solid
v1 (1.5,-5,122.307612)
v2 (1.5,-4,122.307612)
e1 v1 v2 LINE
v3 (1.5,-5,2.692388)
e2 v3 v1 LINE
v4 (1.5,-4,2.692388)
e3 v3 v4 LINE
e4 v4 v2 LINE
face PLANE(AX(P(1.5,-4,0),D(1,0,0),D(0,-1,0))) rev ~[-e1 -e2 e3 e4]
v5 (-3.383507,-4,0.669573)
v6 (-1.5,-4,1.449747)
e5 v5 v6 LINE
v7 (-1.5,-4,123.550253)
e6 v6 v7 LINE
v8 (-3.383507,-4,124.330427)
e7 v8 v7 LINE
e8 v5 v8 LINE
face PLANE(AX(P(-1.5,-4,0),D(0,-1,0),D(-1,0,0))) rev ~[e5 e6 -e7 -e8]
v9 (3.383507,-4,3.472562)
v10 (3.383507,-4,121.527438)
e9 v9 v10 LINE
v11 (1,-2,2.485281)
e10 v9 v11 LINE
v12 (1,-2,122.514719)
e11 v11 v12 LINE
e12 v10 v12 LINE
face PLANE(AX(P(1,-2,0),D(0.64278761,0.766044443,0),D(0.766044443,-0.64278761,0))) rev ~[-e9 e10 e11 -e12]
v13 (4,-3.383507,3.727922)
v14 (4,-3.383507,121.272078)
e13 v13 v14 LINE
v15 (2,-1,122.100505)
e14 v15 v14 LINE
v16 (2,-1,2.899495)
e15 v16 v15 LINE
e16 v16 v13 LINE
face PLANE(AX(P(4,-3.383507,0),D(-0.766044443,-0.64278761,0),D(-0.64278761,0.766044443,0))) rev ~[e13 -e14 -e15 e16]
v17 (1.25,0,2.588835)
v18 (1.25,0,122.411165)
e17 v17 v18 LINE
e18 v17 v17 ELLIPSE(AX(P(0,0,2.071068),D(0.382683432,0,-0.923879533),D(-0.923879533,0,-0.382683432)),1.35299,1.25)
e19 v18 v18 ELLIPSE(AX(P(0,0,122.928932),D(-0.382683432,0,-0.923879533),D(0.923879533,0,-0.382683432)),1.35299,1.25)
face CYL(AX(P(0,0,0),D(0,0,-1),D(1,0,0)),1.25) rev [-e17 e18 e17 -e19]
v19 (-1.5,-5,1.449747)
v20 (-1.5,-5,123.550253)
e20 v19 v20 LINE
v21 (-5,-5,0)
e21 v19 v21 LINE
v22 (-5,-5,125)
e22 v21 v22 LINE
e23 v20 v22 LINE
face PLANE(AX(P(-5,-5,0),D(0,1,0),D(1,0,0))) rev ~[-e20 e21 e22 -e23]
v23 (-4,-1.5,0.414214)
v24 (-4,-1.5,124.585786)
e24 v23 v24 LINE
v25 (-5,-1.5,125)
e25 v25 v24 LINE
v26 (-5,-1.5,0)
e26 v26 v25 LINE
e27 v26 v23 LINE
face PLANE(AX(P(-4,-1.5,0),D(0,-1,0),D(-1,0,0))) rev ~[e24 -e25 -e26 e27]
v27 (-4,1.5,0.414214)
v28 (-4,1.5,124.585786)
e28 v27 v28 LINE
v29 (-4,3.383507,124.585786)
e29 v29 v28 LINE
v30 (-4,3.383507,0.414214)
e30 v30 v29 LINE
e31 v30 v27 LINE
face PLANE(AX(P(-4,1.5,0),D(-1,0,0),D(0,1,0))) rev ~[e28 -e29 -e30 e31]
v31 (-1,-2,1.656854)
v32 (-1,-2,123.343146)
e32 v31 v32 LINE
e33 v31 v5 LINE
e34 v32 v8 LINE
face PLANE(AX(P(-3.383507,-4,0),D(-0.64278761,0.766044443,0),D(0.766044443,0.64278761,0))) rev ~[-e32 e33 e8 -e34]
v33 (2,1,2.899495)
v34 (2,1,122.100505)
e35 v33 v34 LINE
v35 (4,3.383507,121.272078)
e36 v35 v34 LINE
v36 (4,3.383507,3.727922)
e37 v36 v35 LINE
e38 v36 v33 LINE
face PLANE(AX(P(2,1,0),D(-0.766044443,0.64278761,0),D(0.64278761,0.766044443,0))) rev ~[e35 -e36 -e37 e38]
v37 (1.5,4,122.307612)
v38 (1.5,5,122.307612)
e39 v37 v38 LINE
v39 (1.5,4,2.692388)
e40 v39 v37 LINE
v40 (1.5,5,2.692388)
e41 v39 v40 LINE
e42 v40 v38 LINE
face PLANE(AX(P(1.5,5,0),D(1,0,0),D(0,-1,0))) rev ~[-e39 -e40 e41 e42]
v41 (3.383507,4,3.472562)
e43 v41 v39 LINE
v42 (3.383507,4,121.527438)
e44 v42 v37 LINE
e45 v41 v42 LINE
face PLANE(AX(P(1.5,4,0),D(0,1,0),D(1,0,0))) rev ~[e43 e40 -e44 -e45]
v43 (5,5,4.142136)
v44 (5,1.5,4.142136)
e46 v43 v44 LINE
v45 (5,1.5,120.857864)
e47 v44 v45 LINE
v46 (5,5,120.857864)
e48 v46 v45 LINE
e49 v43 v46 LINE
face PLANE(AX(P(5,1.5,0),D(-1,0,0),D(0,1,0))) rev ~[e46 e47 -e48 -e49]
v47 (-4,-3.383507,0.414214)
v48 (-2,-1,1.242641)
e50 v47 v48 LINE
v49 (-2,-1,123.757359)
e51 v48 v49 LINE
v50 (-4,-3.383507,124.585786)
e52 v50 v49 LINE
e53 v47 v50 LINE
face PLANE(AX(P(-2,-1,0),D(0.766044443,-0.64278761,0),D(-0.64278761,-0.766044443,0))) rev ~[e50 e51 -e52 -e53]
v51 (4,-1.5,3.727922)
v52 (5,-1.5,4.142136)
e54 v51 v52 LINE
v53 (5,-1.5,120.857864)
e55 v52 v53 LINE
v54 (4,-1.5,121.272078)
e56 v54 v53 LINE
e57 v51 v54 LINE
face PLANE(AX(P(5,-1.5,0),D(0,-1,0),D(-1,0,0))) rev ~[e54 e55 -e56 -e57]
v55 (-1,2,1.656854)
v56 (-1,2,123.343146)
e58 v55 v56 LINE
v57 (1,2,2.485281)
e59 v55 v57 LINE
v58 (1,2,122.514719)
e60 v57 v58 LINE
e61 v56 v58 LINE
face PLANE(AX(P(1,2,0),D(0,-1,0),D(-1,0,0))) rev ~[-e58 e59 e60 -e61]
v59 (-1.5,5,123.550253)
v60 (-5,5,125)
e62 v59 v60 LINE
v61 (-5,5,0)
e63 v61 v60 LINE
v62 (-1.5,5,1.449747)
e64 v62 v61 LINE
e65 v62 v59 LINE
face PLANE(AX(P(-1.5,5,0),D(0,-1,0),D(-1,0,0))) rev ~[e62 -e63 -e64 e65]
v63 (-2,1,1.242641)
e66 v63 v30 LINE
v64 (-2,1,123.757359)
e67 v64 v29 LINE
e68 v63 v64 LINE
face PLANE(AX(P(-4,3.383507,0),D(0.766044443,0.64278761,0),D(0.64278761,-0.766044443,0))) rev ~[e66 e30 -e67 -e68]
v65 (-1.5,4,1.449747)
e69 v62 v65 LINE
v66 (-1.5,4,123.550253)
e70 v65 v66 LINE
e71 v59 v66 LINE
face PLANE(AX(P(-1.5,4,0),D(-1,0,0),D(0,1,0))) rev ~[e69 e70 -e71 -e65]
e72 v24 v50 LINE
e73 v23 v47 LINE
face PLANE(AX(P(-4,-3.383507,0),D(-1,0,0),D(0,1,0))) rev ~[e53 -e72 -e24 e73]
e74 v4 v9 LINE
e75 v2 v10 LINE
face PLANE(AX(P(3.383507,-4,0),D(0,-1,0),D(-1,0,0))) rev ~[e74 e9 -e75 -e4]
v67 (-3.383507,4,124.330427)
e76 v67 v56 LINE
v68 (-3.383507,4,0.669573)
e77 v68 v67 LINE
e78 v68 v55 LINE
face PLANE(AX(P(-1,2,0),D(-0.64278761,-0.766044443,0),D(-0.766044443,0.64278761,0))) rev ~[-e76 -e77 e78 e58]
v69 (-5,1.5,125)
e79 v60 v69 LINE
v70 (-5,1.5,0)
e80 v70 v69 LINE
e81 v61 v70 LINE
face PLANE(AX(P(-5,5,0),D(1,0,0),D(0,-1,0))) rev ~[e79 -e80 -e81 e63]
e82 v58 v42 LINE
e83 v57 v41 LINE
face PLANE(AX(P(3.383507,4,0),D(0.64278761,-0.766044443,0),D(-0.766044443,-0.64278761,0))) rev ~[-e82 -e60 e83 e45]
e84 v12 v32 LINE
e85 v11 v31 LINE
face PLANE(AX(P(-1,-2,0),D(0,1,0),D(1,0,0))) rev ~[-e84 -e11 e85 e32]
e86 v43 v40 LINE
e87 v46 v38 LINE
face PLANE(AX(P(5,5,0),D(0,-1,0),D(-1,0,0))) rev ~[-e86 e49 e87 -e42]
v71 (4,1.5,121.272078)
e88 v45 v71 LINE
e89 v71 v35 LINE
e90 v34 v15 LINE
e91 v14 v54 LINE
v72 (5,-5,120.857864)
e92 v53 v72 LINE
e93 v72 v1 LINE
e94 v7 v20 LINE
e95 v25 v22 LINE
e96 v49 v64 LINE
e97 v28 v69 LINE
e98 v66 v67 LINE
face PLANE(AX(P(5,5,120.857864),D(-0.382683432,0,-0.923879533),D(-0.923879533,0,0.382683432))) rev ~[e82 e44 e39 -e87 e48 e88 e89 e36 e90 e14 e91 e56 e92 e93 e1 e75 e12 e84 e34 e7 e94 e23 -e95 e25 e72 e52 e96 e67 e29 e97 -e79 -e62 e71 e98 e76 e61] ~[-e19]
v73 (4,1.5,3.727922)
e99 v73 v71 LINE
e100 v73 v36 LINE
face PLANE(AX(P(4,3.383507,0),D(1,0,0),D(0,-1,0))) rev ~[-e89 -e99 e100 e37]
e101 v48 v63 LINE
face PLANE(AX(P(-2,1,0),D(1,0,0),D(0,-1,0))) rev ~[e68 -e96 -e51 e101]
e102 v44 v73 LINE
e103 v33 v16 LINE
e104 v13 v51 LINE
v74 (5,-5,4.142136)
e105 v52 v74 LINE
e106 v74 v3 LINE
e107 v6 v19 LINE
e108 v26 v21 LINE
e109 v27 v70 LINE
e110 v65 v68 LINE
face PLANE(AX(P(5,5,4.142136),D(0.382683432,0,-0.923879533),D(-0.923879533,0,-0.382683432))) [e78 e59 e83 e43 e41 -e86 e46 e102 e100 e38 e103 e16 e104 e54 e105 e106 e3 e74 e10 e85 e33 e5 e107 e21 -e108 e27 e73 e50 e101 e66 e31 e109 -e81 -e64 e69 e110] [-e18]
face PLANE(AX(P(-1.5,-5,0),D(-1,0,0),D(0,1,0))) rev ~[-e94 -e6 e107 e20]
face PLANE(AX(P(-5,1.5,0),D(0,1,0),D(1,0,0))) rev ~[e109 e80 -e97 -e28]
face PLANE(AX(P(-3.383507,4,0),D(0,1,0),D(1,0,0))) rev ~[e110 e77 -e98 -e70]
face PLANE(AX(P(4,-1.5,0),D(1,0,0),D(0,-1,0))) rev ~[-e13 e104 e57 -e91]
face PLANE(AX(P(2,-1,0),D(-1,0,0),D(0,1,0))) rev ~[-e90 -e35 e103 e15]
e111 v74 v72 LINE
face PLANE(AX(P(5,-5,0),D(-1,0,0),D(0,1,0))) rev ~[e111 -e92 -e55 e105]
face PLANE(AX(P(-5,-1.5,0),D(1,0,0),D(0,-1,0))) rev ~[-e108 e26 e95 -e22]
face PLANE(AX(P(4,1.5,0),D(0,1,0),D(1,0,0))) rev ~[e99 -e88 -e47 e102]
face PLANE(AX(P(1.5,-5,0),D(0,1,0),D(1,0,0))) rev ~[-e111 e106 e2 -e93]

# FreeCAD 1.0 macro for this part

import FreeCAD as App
import Part
import Sketcher
Q = App.Units.Quantity


def add_polygon(sketch, points):
    """Adds a closed chain of lines whose ends are joined by coincident constraints."""
    first, n = sketch.GeometryCount, len(points)
    for a, b in zip(points, points[1:] + points[:1]):
        sketch.addGeometry(Part.LineSegment(App.Vector(*a, 0), App.Vector(*b, 0)), False)
    for i in range(n):
        sketch.addConstraint(Sketcher.Constraint("Coincident", first + i, 2, first + (i + 1) % n, 1))

doc = App.newDocument("Part")
params = doc.addObject("Spreadsheet::Sheet", "Params")
for row, (alias, value) in enumerate([
    ("sketch1_diameter", "2.5 mm"),
    ("sketch1_width", "2 mm"),
    ("sketch1_width2", "1 mm"),
    ("sketch1_width3", "3.5 mm"),
    ("pad1_length", "125 mm"),
    ("sketch2_width", "10 mm"),
], start=1):
    params.set(f"A{row}", alias)
    params.set(f"B{row}", "=" + value)
    params.setAlias(f"B{row}", alias)

body = doc.addObject("PartDesign::Body", "Body")

sketch1 = body.newObject("Sketcher::SketchObject", "Sketch")
sketch1.AttachmentSupport = (doc.getObject("XY_Plane"), [""])
sketch1.MapMode = "FlatFace"
add_polygon(sketch1, [(-1, -2), (1, -2), (3.383507, -4), (1.5, -4), (1.5, -5), (5, -5), (5, -1.5), (4, -1.5), (4, -3.383507), (2, -1), (2, 1), (4, 3.383507), (4, 1.5), (5, 1.5), (5, 5), (1.5, 5), (1.5, 4), (3.383507, 4), (1, 2), (-1, 2), (-3.383507, 4), (-1.5, 4), (-1.5, 5), (-5, 5), (-5, 1.5), (-4, 1.5), (-4, 3.383507), (-2, 1), (-2, -1), (-4, -3.383507), (-4, -1.5), (-5, -1.5), (-5, -5), (-1.5, -5), (-1.5, -4), (-3.383507, -4)])
sketch1.addGeometry(Part.Circle(App.Vector(0, 0, 0), App.Vector(0, 0, 1), 1.25), False)
sketch1.addConstraint([
    Sketcher.Constraint("Horizontal", 0),
    Sketcher.Constraint("Horizontal", 2),
    Sketcher.Constraint("Vertical", 3),
    Sketcher.Constraint("Horizontal", 4),
    Sketcher.Constraint("Vertical", 5),
    Sketcher.Constraint("Horizontal", 6),
    Sketcher.Constraint("Vertical", 7),
    Sketcher.Constraint("Vertical", 9),
    Sketcher.Constraint("Vertical", 11),
    Sketcher.Constraint("Horizontal", 12),
    Sketcher.Constraint("Vertical", 13),
    Sketcher.Constraint("Horizontal", 14),
    Sketcher.Constraint("Vertical", 15),
    Sketcher.Constraint("Horizontal", 16),
    Sketcher.Constraint("Horizontal", 18),
    Sketcher.Constraint("Horizontal", 20),
    Sketcher.Constraint("Vertical", 21),
    Sketcher.Constraint("Horizontal", 22),
    Sketcher.Constraint("Vertical", 23),
    Sketcher.Constraint("Horizontal", 24),
    Sketcher.Constraint("Vertical", 25),
    Sketcher.Constraint("Vertical", 27),
    Sketcher.Constraint("Vertical", 29),
    Sketcher.Constraint("Horizontal", 30),
    Sketcher.Constraint("Vertical", 31),
    Sketcher.Constraint("Horizontal", 32),
    Sketcher.Constraint("Vertical", 33),
    Sketcher.Constraint("Horizontal", 34),
    Sketcher.Constraint("Coincident", 36, 3, -1, 1),
    Sketcher.Constraint("Symmetric", 0, 2, 18, 2, -1, 1),
    Sketcher.Constraint("Symmetric", 1, 2, 19, 2, -1, 1),
    Sketcher.Constraint("Symmetric", 3, 2, 21, 2, -1, 1),
    Sketcher.Constraint("Symmetric", 5, 2, 23, 2, -1, 1),
    Sketcher.Constraint("Symmetric", 7, 2, 25, 2, -1, 1),
    Sketcher.Constraint("Symmetric", 8, 2, 26, 2, -1, 1),
    Sketcher.Constraint("Symmetric", 10, 2, 28, 2, -1, 1),
    Sketcher.Constraint("Symmetric", 12, 2, 30, 2, -1, 1),
    Sketcher.Constraint("Symmetric", 14, 2, 32, 2, -1, 1),
    Sketcher.Constraint("Symmetric", 16, 2, 34, 2, -1, 1),
    Sketcher.Constraint("Symmetric", 16, 2, 19, 2, -2),
    Sketcher.Constraint("Symmetric", 14, 2, 21, 2, -2),
    Sketcher.Constraint("Symmetric", 12, 2, 23, 2, -2),
    Sketcher.Constraint("Symmetric", 10, 2, 25, 2, -2),
    Sketcher.Constraint("Perpendicular", 1, 10),
    Sketcher.Constraint("Perpendicular", 8, 17),
    Sketcher.Constraint("Perpendicular", 19, 28),
    Sketcher.Constraint("Perpendicular", 26, 35),
    Sketcher.Constraint("Horizontal", 9, 2, 26, 2),
    Sketcher.Constraint("Equal", 30, 3),
    Sketcher.Constraint("Equal", 32, 5),
    Sketcher.Constraint("Equal", 34, 7),
    Sketcher.Constraint("Equal", 18, 9),
    Sketcher.Constraint("Equal", 1, 8),
    Sketcher.Constraint("Diameter", 36, 2.5),
    Sketcher.Constraint("DistanceX", 0, 1, 0, 2, 2.0),
    Sketcher.Constraint("DistanceX", 6, 2, 6, 1, 1.0),
    Sketcher.Constraint("Angle", 1, Q("-40 deg")),
    Sketcher.Constraint("DistanceX", 4, 1, 4, 2, 3.5),
    Sketcher.Constraint("DistanceY", 0, 2, -1, 1, 2.0),
    Sketcher.Constraint("DistanceY", 1, 2, -1, 1, 4.0),
])
sketch1.setExpression("Constraints[89]", "Params.sketch1_diameter")
sketch1.setExpression("Constraints[90]", "Params.sketch1_width")
sketch1.setExpression("Constraints[91]", "Params.sketch1_width2")
sketch1.setExpression("Constraints[93]", "Params.sketch1_width3")
pad1 = body.newObject("PartDesign::Pad", "Pad")
pad1.Profile = sketch1
pad1.setExpression("Length", "Params.pad1_length")

sketch2 = body.newObject("Sketcher::SketchObject", "Sketch001")
sketch2.AttachmentSupport = (doc.getObject("XZ_Plane"), [""])
sketch2.MapMode = "FlatFace"
sketch2.AttachmentOffset = App.Placement(App.Vector(0, 0, -5), App.Rotation())
add_polygon(sketch2, [(5, 0), (-5, 0), (5, 4.142136)])
add_polygon(sketch2, [(5, 120.857864), (-5, 125), (5, 125)])
sketch2.addConstraint([
    Sketcher.Constraint("Horizontal", 0),
    Sketcher.Constraint("Vertical", 2),
    Sketcher.Constraint("Horizontal", 4),
    Sketcher.Constraint("Vertical", 5),
    Sketcher.Constraint("Symmetric", 0, 2, 2, 2, -1, 1),
    Sketcher.Constraint("Vertical", 0, 2, 3, 2),
    Sketcher.Constraint("Vertical", 2, 2, 4, 2),
    Sketcher.Constraint("Equal", 2, 5),
    Sketcher.Constraint("DistanceX", 0, 2, 0, 1, 10.0),
    Sketcher.Constraint("DistanceY", -1, 1, 3, 2, 125.0),
    Sketcher.Constraint("Angle", 1, Q("22.5 deg")),
])
sketch2.setExpression("Constraints[14]", "Params.sketch2_width")
pocket1 = body.newObject("PartDesign::Pocket", "Pocket")
pocket1.Profile = sketch2
pocket1.Type = "ThroughAll"
pocket1.Reversed = True

doc.recompute()
